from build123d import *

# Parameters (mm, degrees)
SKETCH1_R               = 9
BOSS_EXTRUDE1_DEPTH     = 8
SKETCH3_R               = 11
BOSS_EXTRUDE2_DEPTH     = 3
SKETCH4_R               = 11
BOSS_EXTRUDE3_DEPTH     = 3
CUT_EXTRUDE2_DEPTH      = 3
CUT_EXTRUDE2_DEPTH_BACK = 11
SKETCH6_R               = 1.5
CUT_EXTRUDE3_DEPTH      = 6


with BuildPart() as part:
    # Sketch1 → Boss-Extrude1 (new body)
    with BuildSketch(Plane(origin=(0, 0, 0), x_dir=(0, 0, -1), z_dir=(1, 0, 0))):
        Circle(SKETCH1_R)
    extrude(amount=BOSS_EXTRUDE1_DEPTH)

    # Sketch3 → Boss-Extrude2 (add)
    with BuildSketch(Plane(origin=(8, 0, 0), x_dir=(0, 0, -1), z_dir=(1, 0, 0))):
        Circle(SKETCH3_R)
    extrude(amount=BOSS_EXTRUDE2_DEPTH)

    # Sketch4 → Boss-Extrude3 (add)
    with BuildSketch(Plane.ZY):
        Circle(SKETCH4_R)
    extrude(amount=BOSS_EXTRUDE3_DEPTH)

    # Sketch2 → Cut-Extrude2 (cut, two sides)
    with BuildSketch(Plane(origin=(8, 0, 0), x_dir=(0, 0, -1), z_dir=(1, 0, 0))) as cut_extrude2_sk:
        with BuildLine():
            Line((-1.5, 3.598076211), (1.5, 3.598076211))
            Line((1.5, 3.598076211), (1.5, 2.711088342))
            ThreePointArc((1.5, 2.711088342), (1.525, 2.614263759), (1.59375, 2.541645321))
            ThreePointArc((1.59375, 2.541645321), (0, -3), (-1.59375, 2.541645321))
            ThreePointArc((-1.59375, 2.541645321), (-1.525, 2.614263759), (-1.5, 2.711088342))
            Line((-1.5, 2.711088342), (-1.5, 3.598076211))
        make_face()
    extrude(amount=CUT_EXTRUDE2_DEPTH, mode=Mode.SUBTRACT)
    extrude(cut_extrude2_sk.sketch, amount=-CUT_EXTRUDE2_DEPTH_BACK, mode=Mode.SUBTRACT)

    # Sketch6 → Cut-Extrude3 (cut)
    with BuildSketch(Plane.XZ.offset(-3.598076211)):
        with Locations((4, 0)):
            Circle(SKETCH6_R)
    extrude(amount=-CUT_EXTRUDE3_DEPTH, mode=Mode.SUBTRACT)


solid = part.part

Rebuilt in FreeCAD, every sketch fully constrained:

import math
import FreeCAD as App
import Part
import Sketcher
from FreeCAD import Vector
Q = App.Units.Quantity

doc = App.newDocument("Part")
body = doc.addObject("PartDesign::Body", "Body")

# Sketch on YZ plane
sketch1 = doc.addObject("Sketcher::SketchObject", "Sketch")
body.addObject(sketch1)
sketch1.AttachmentSupport = (doc.YZ_Plane, [""])
sketch1.MapMode = "FlatFace"
sketch1.addGeometry(Part.Circle(Vector(0, 0, 0), Vector(0, 0, 1), 9), False)
sketch1.addConstraint([
    Sketcher.Constraint("Coincident", 0, 3, -1, 1),
    Sketcher.Constraint("Diameter", 0, Q("18 mm")),
])
pad1 = doc.addObject("PartDesign::Pad", "Pad")
body.addObject(pad1)
pad1.Profile = sketch1
pad1.Length = 8

# Sketch on YZ plane
sketch2 = doc.addObject("Sketcher::SketchObject", "Sketch001")
body.addObject(sketch2)
sketch2.AttachmentSupport = (doc.YZ_Plane, [""])
sketch2.MapMode = "FlatFace"
sketch2.AttachmentOffset = App.Placement(Vector(0, 0, 8), App.Rotation())
sketch2.addGeometry(Part.Circle(Vector(0, 0, 0), Vector(0, 0, 1), 11), False)
sketch2.addConstraint([
    Sketcher.Constraint("Coincident", 0, 3, -1, 1),
    Sketcher.Constraint("Diameter", 0, Q("22 mm")),
])
pad2 = doc.addObject("PartDesign::Pad", "Pad001")
body.addObject(pad2)
pad2.Profile = sketch2
pad2.Length = 3

# Sketch on YZ plane
sketch3 = doc.addObject("Sketcher::SketchObject", "Sketch002")
body.addObject(sketch3)
sketch3.AttachmentSupport = (doc.YZ_Plane, [""])
sketch3.MapMode = "FlatFace"
sketch3.addGeometry(Part.Circle(Vector(0, 0, 0), Vector(0, 0, 1), 11), False)
sketch3.addConstraint([
    Sketcher.Constraint("Coincident", 0, 3, -1, 1),
    Sketcher.Constraint("Diameter", 0, Q("22 mm")),
])
pad3 = doc.addObject("PartDesign::Pad", "Pad002")
body.addObject(pad3)
pad3.Profile = sketch3
pad3.Length = 3
pad3.Reversed = True

# Sketch on YZ plane
sketch4 = doc.addObject("Sketcher::SketchObject", "Sketch003")
body.addObject(sketch4)
sketch4.AttachmentSupport = (doc.YZ_Plane, [""])
sketch4.MapMode = "FlatFace"
sketch4.AttachmentOffset = App.Placement(Vector(0, 0, 8), App.Rotation())
sketch4.addGeometry([
    Part.LineSegment(Vector(3.6, -1.5, 0), Vector(3.6, 1.5, 0)),  # 0
    Part.LineSegment(Vector(3.6, 1.5, 0), Vector(2.71, 1.5, 0)),  # 1
    Part.ArcOfCircle(Part.Circle(Vector(2.71, 1.7, 0), Vector(0, 0, 1), 0.2), math.radians(-148), math.radians(-90)),  # 2
    Part.ArcOfCircle(Part.Circle(Vector(0, 0, 0), Vector(0, 0, 1), 3), math.radians(32), math.radians(328)),  # 3
    Part.ArcOfCircle(Part.Circle(Vector(2.71, -1.7, 0), Vector(0, 0, 1), 0.2), math.radians(90), math.radians(148)),  # 4
    Part.LineSegment(Vector(2.71, -1.5, 0), Vector(3.6, -1.5, 0)),  # 5
], False)
sketch4.addConstraint([
    Sketcher.Constraint("Coincident", 0, 2, 1, 1),
    Sketcher.Constraint("Tangent", 1, 2, 2, 2),
    Sketcher.Constraint("Tangent", 2, 1, 3, 1),
    Sketcher.Constraint("Tangent", 3, 2, 4, 2),
    Sketcher.Constraint("Tangent", 4, 1, 5, 1),
    Sketcher.Constraint("Coincident", 5, 2, 0, 1),
    Sketcher.Constraint("Vertical", 0),
    Sketcher.Constraint("Horizontal", 1),
    Sketcher.Constraint("Horizontal", 5),
    Sketcher.Constraint("Coincident", 3, 3, -1, 1),
    Sketcher.Constraint("Equal", 2, 4),
    Sketcher.Constraint("Vertical", 2, 3, 4, 3),
    Sketcher.Constraint("Radius", 3, Q("3 mm")),
    Sketcher.Constraint("Radius", 2, Q("0.2 mm")),
    Sketcher.Constraint("DistanceY", 0, 1, 0, 2, Q("3 mm")),
    Sketcher.Constraint("DistanceX", 1, 2, 1, 1, Q("0.886988 mm")),
])
pocket1 = doc.addObject("PartDesign::Pocket", "Pocket")
body.addObject(pocket1)
pocket1.Profile = sketch4
pocket1.Type = "ThroughAll"
pocket1.Midplane = True

# Sketch on XZ plane
sketch5 = doc.addObject("Sketcher::SketchObject", "Sketch004")
body.addObject(sketch5)
sketch5.AttachmentSupport = (doc.XZ_Plane, [""])
sketch5.MapMode = "FlatFace"
sketch5.AttachmentOffset = App.Placement(Vector(0, 0, -3.598076), App.Rotation())
sketch5.addGeometry(Part.Circle(Vector(4, 0, 0), Vector(0, 0, 1), 1.5), False)
sketch5.addConstraint([
    Sketcher.Constraint("PointOnObject", 0, 3, -1),
    Sketcher.Constraint("Diameter", 0, Q("3 mm")),
    Sketcher.Constraint("DistanceX", -1, 1, 0, 3, Q("4 mm")),
])
pocket2 = doc.addObject("PartDesign::Pocket", "Pocket001")
body.addObject(pocket2)
pocket2.Profile = sketch5
pocket2.Length = 6

doc.recompute()
